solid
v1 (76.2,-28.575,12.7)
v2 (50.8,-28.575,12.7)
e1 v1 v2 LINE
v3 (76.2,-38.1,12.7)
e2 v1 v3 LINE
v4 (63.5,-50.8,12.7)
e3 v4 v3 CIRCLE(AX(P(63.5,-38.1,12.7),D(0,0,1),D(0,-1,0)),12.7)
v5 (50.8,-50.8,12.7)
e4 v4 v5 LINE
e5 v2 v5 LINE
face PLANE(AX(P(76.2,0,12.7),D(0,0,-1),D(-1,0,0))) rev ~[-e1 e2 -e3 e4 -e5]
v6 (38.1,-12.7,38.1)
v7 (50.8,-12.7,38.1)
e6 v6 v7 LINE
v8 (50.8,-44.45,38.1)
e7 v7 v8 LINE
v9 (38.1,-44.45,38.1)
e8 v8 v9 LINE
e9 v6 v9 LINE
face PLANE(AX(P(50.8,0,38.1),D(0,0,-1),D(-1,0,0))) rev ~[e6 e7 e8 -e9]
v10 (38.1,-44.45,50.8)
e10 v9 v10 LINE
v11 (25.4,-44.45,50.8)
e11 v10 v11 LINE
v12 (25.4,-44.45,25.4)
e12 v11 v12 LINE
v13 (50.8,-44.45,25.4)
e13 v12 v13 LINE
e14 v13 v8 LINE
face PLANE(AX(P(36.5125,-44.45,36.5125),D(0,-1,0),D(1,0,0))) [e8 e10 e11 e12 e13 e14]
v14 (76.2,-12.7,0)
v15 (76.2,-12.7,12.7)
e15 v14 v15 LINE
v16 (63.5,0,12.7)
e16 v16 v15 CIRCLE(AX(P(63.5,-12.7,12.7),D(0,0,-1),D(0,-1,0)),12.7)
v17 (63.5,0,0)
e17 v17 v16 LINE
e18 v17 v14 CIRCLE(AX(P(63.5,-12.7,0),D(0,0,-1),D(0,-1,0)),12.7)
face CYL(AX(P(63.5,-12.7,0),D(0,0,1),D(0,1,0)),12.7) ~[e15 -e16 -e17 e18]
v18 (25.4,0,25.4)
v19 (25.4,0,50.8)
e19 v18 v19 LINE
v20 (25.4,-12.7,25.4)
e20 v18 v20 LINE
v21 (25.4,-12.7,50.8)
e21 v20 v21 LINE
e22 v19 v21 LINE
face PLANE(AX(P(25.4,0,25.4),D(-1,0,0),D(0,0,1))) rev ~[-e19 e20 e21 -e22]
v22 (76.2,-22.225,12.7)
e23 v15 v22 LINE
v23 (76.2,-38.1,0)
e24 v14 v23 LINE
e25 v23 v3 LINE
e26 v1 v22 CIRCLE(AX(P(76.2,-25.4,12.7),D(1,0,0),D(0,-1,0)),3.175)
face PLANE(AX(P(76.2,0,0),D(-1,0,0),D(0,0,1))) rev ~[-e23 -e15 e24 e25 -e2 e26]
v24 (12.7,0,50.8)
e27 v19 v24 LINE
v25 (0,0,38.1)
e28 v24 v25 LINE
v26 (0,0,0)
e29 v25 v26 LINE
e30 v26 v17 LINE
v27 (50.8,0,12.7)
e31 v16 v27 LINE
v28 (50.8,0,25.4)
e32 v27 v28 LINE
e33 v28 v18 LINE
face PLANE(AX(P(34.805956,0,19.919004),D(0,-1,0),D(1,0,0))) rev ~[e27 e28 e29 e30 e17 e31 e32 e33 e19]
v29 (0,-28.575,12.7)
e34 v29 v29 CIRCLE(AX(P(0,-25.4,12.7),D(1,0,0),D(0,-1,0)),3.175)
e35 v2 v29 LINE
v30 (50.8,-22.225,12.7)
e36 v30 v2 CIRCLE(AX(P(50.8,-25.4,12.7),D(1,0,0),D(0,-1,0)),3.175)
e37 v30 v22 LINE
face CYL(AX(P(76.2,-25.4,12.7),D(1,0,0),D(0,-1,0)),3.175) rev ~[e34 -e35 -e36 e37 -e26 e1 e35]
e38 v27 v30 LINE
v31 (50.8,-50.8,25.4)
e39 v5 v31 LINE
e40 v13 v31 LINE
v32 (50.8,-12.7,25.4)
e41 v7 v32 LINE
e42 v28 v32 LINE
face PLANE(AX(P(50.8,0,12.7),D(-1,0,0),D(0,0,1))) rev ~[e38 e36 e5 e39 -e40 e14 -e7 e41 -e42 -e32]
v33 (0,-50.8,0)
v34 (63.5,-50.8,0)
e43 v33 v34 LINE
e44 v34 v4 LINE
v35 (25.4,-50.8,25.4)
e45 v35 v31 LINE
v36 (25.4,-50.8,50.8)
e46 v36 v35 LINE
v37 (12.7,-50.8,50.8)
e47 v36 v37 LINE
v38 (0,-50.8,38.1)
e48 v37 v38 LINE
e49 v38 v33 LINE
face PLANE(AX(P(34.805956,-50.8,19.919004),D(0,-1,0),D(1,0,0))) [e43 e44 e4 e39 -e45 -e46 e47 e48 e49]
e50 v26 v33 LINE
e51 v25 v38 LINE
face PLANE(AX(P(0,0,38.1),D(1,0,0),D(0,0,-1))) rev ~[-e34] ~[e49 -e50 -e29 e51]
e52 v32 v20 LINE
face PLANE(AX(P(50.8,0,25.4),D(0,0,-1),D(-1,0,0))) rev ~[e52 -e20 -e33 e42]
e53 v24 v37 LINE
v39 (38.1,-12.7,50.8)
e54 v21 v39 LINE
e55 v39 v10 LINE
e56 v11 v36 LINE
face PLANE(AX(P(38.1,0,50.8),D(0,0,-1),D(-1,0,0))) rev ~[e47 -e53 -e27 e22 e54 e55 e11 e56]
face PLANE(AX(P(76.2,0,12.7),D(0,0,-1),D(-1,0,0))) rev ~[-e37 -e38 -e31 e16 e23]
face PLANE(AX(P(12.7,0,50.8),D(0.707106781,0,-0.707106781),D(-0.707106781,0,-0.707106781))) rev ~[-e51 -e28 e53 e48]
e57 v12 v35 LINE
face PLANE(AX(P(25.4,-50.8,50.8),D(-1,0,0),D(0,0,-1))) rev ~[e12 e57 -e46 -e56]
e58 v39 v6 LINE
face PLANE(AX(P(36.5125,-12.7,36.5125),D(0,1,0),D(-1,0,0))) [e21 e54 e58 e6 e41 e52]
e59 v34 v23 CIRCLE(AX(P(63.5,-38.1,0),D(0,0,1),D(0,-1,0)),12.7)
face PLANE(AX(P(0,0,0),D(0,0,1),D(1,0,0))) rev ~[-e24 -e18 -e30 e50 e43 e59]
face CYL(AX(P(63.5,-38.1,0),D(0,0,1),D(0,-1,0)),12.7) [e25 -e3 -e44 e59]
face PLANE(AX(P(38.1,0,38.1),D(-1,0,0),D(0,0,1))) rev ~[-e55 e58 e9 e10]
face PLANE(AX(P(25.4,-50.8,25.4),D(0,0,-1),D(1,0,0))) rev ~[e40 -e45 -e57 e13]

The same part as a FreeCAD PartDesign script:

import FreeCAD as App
import Part
import Sketcher
from FreeCAD import Vector
Q = App.Units.Quantity


def edges_at(feature, points):
    """Names of the edges that pass closest to the given points."""
    edges = feature.Shape.Edges
    near = lambda p: min(range(len(edges)), key=lambda i: edges[i].distToShape(Part.Vertex(*p))[0])
    return sorted({f"Edge{near(p) + 1}" for p in points})


def add_polygon(sketch, points):
    """Adds a closed chain of lines whose ends are joined by coincident constraints."""
    first, n = sketch.GeometryCount, len(points)
    for a, b in zip(points, points[1:] + points[:1]):
        sketch.addGeometry(Part.LineSegment(App.Vector(*a, 0), App.Vector(*b, 0)), False)
    for i in range(n):
        sketch.addConstraint(Sketcher.Constraint("Coincident", first + i, 2, first + (i + 1) % n, 1))

doc = App.newDocument("Part")
body = doc.addObject("PartDesign::Body", "Body")

# Sketch on XZ plane
sketch1 = body.newObject("Sketcher::SketchObject", "Sketch")
sketch1.AttachmentSupport = (doc.getObject("XZ_Plane"), [""])
sketch1.MapMode = "FlatFace"
add_polygon(sketch1, [(0, 38.1), (0, 0), (76.2, 0), (76.2, 12.7), (50.8, 12.7), (50.8, 38.1), (38.1, 38.1), (38.1, 50.8), (12.7, 50.8)])  # lines 0-8
sketch1.addConstraint(Sketcher.Constraint("Vertical", 0))
sketch1.addConstraint(Sketcher.Constraint("Horizontal", 1))
sketch1.addConstraint(Sketcher.Constraint("Vertical", 2))
sketch1.addConstraint(Sketcher.Constraint("Horizontal", 3))
sketch1.addConstraint(Sketcher.Constraint("Vertical", 4))
sketch1.addConstraint(Sketcher.Constraint("Horizontal", 5))
sketch1.addConstraint(Sketcher.Constraint("Vertical", 6))
sketch1.addConstraint(Sketcher.Constraint("Horizontal", 7))
sketch1.addConstraint(Sketcher.Constraint("Coincident", 0, 2, -1, 1))
sketch1.addConstraint(Sketcher.Constraint("Horizontal", 5, 2, 8, 2))
sketch1.addConstraint(Sketcher.Constraint("Equal", 3, 7))
sketch1.addConstraint(Sketcher.Constraint("Equal", 5, 2))
sketch1.addConstraint(Sketcher.Constraint("Equal", 7, 4))
sketch1.addConstraint(Sketcher.Constraint("Equal", 2, 6))
sketch1.addConstraint(Sketcher.Constraint("DistanceX", 1, 1, 1, 2, Q("3 in")))
sketch1.addConstraint(Sketcher.Constraint("DistanceX", 3, 2, 3, 1, Q("1 in")))
sketch1.addConstraint(Sketcher.Constraint("DistanceX", 5, 2, 5, 1, Q("0.5 in")))
pad1 = body.newObject("PartDesign::Pad", "Pad")
pad1.Profile = sketch1
pad1.Length = Q("2 in")

# Sketch on XZ plane
sketch2 = body.newObject("Sketcher::SketchObject", "Sketch001")
sketch2.AttachmentSupport = (doc.getObject("XZ_Plane"), [""])
sketch2.MapMode = "FlatFace"
sketch2.AttachmentOffset = App.Placement(Vector(0, 0, 2 * 25.4), App.Rotation())
add_polygon(sketch2, [(38.1, 50.8), (25.4, 50.8), (25.4, 25.4), (50.8, 25.4), (50.8, 38.1), (38.1, 38.1)])  # lines 0-5
sketch2.addConstraint(Sketcher.Constraint("Horizontal", 0))
sketch2.addConstraint(Sketcher.Constraint("Vertical", 1))
sketch2.addConstraint(Sketcher.Constraint("Horizontal", 2))
sketch2.addConstraint(Sketcher.Constraint("Vertical", 3))
sketch2.addConstraint(Sketcher.Constraint("Horizontal", 4))
sketch2.addConstraint(Sketcher.Constraint("Vertical", 5))
sketch2.addConstraint(Sketcher.Constraint("Equal", 0, 4))
sketch2.addConstraint(Sketcher.Constraint("Equal", 2, 1))
sketch2.addConstraint(Sketcher.Constraint("Equal", 4, 3))
sketch2.addConstraint(Sketcher.Constraint("DistanceX", 2, 1, 2, 2, Q("1 in")))
sketch2.addConstraint(Sketcher.Constraint("DistanceX", -1, 1, 0, 2, Q("1 in")))
sketch2.addConstraint(Sketcher.Constraint("DistanceY", -1, 1, 0, 2, Q("2 in")))
pocket1 = body.newObject("PartDesign::Pocket", "Pocket")
pocket1.Profile = sketch2
pocket1.Length = Q("0.5 in")
pocket1.Midplane = True

# Sketch on XZ plane
sketch3 = body.newObject("Sketcher::SketchObject", "Sketch002")
sketch3.AttachmentSupport = (doc.getObject("XZ_Plane"), [""])
sketch3.MapMode = "FlatFace"
add_polygon(sketch3, [(25.4, 25.4), (25.4, 50.8), (38.1, 50.8), (38.1, 38.1), (50.8, 38.1), (50.8, 25.4)])  # lines 0-5
sketch3.addConstraint(Sketcher.Constraint("Vertical", 0))
sketch3.addConstraint(Sketcher.Constraint("Horizontal", 1))
sketch3.addConstraint(Sketcher.Constraint("Vertical", 2))
sketch3.addConstraint(Sketcher.Constraint("Horizontal", 3))
sketch3.addConstraint(Sketcher.Constraint("Vertical", 4))
sketch3.addConstraint(Sketcher.Constraint("Horizontal", 5))
sketch3.addConstraint(Sketcher.Constraint("Equal", 1, 3))
sketch3.addConstraint(Sketcher.Constraint("Equal", 5, 0))
sketch3.addConstraint(Sketcher.Constraint("Equal", 3, 2))
sketch3.addConstraint(Sketcher.Constraint("DistanceX", 5, 2, 5, 1, Q("1 in")))
sketch3.addConstraint(Sketcher.Constraint("DistanceX", -1, 1, 0, 2, Q("1 in")))
sketch3.addConstraint(Sketcher.Constraint("DistanceY", -1, 1, 0, 2, Q("2 in")))
pocket2 = body.newObject("PartDesign::Pocket", "Pocket001")
pocket2.Profile = sketch3
pocket2.Length = Q("0.5 in")
pocket2.Reversed = True

# Sketch on YZ plane
sketch4 = body.newObject("Sketcher::SketchObject", "Sketch003")
sketch4.AttachmentSupport = (doc.getObject("YZ_Plane"), [""])
sketch4.MapMode = "FlatFace"
sketch4.AttachmentOffset = App.Placement(Vector(0, 0, 3 * 25.4), App.Rotation())
sketch4.addGeometry(Part.Circle(Vector(-25.4, 12.7, 0), Vector(0, 0, 1), 3.175), False)
sketch4.addConstraint(Sketcher.Constraint("Diameter", 0, Q("0.25 in")))
sketch4.addConstraint(Sketcher.Constraint("DistanceX", 0, 3, -1, 1, Q("1 in")))
sketch4.addConstraint(Sketcher.Constraint("DistanceY", -1, 1, 0, 3, Q("0.5 in")))
pocket3 = body.newObject("PartDesign::Pocket", "Pocket002")
pocket3.Profile = sketch4
pocket3.Length = Q("3 in")
doc.recompute()

fillet = body.newObject("PartDesign::Fillet", "Fillet")
fillet.Base = (pocket3, edges_at(pocket3, [(76.2, -50.8, 6.35), (76.2, 0, 6.35)]))
fillet.Radius = Q("0.5 in")

doc.recompute()
